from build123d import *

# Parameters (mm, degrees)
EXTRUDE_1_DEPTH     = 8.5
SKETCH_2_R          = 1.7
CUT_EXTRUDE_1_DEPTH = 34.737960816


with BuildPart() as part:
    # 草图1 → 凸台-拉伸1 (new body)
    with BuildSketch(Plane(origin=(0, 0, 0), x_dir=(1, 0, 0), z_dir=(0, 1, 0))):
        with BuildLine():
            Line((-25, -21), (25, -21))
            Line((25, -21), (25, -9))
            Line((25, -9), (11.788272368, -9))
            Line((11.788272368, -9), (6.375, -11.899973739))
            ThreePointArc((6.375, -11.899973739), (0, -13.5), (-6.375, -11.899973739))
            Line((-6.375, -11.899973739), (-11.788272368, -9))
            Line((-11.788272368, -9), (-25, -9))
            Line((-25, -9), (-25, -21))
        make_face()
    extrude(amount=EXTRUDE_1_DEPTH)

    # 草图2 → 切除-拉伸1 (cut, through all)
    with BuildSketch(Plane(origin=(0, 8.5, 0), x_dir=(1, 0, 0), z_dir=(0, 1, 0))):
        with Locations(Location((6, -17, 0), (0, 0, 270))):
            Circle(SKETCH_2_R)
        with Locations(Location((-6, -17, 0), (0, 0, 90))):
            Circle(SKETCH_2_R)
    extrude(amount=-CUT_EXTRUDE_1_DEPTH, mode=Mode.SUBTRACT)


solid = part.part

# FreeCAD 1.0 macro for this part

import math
import FreeCAD as App
import Part
import Sketcher

doc = App.newDocument("Part")
body = doc.addObject("PartDesign::Body", "Body")

sketch1 = doc.addObject("Sketcher::SketchObject", "Sketch")
body.addObject(sketch1)
sketch1.AttachmentSupport = (doc.XZ_Plane, [""])
sketch1.MapMode = "FlatFace"
sketch1.addGeometry(Part.LineSegment(App.Vector(-25, 21, 0), App.Vector(25, 21, 0)), False)
sketch1.addGeometry(Part.LineSegment(App.Vector(25, 21, 0), App.Vector(25, 9, 0)), False)
sketch1.addGeometry(Part.LineSegment(App.Vector(25, 9, 0), App.Vector(11.788272, 9, 0)), False)
sketch1.addGeometry(Part.LineSegment(App.Vector(11.788272, 9, 0), App.Vector(6.375, 11.899974, 0)), False)
sketch1.addGeometry(Part.ArcOfCircle(Part.Circle(App.Vector(0, 0, 0), App.Vector(0, 0, 1), 13.5), math.radians(61.821357), math.radians(118.178643)), False)
sketch1.addGeometry(Part.LineSegment(App.Vector(-6.375, 11.899974, 0), App.Vector(-11.788272, 9, 0)), False)
sketch1.addGeometry(Part.LineSegment(App.Vector(-11.788272, 9, 0), App.Vector(-25, 9, 0)), False)
sketch1.addGeometry(Part.LineSegment(App.Vector(-25, 9, 0), App.Vector(-25, 21, 0)), False)
sketch1.addConstraint(Sketcher.Constraint("Coincident", 0, 2, 1, 1))
sketch1.addConstraint(Sketcher.Constraint("Coincident", 1, 2, 2, 1))
sketch1.addConstraint(Sketcher.Constraint("Coincident", 2, 2, 3, 1))
sketch1.addConstraint(Sketcher.Constraint("Tangent", 3, 2, 4, 1))
sketch1.addConstraint(Sketcher.Constraint("Tangent", 4, 2, 5, 1))
sketch1.addConstraint(Sketcher.Constraint("Coincident", 5, 2, 6, 1))
sketch1.addConstraint(Sketcher.Constraint("Coincident", 6, 2, 7, 1))
sketch1.addConstraint(Sketcher.Constraint("Coincident", 7, 2, 0, 1))
sketch1.addConstraint(Sketcher.Constraint("Horizontal", 0))
sketch1.addConstraint(Sketcher.Constraint("Vertical", 1))
sketch1.addConstraint(Sketcher.Constraint("Horizontal", 2))
sketch1.addConstraint(Sketcher.Constraint("Horizontal", 6))
sketch1.addConstraint(Sketcher.Constraint("Vertical", 7))
sketch1.addConstraint(Sketcher.Constraint("Coincident", 4, 3, -1, 1))
sketch1.addConstraint(Sketcher.Constraint("Symmetric", 2, 2, 5, 2, -2))
sketch1.addConstraint(Sketcher.Constraint("Equal", 2, 6))
sketch1.addConstraint(Sketcher.Constraint("Radius", 4, 13.5))
sketch1.addConstraint(Sketcher.Constraint("DistanceX", 0, 1, 0, 2, 50.0))
sketch1.addConstraint(Sketcher.Constraint("DistanceY", 1, 2, 1, 1, 12.0))
sketch1.addConstraint(Sketcher.Constraint("DistanceY", -1, 1, 0, 2, 21.0))
sketch1.addConstraint(Sketcher.Constraint("DistanceX", 4, 2, 3, 2, 12.75))
pad1 = doc.addObject("PartDesign::Pad", "Pad")
body.addObject(pad1)
pad1.Profile = sketch1
pad1.Length = 8.5
pad1.Reversed = True

sketch2 = doc.addObject("Sketcher::SketchObject", "Sketch001")
body.addObject(sketch2)
sketch2.AttachmentSupport = (doc.XZ_Plane, [""])
sketch2.MapMode = "FlatFace"
sketch2.AttachmentOffset = App.Placement(App.Vector(0, 0, -8.5), App.Rotation())
sketch2.addGeometry(Part.Circle(App.Vector(6, 17, 0), App.Vector(0, 0, 1), 1.7), False)
sketch2.addGeometry(Part.Circle(App.Vector(-6, 17, 0), App.Vector(0, 0, 1), 1.7), False)
sketch2.addConstraint(Sketcher.Constraint("Equal", 0, 1))
sketch2.addConstraint(Sketcher.Constraint("Symmetric", 0, 3, 1, 3, -2))
sketch2.addConstraint(Sketcher.Constraint("Diameter", 0, 3.4))
sketch2.addConstraint(Sketcher.Constraint("DistanceX", -1, 1, 0, 3, 6.0))
sketch2.addConstraint(Sketcher.Constraint("DistanceY", -1, 1, 0, 3, 17.0))
pocket1 = doc.addObject("PartDesign::Pocket", "Pocket")
body.addObject(pocket1)
pocket1.Profile = sketch2
pocket1.Type = "ThroughAll"
pocket1.Reversed = True

doc.recompute()
